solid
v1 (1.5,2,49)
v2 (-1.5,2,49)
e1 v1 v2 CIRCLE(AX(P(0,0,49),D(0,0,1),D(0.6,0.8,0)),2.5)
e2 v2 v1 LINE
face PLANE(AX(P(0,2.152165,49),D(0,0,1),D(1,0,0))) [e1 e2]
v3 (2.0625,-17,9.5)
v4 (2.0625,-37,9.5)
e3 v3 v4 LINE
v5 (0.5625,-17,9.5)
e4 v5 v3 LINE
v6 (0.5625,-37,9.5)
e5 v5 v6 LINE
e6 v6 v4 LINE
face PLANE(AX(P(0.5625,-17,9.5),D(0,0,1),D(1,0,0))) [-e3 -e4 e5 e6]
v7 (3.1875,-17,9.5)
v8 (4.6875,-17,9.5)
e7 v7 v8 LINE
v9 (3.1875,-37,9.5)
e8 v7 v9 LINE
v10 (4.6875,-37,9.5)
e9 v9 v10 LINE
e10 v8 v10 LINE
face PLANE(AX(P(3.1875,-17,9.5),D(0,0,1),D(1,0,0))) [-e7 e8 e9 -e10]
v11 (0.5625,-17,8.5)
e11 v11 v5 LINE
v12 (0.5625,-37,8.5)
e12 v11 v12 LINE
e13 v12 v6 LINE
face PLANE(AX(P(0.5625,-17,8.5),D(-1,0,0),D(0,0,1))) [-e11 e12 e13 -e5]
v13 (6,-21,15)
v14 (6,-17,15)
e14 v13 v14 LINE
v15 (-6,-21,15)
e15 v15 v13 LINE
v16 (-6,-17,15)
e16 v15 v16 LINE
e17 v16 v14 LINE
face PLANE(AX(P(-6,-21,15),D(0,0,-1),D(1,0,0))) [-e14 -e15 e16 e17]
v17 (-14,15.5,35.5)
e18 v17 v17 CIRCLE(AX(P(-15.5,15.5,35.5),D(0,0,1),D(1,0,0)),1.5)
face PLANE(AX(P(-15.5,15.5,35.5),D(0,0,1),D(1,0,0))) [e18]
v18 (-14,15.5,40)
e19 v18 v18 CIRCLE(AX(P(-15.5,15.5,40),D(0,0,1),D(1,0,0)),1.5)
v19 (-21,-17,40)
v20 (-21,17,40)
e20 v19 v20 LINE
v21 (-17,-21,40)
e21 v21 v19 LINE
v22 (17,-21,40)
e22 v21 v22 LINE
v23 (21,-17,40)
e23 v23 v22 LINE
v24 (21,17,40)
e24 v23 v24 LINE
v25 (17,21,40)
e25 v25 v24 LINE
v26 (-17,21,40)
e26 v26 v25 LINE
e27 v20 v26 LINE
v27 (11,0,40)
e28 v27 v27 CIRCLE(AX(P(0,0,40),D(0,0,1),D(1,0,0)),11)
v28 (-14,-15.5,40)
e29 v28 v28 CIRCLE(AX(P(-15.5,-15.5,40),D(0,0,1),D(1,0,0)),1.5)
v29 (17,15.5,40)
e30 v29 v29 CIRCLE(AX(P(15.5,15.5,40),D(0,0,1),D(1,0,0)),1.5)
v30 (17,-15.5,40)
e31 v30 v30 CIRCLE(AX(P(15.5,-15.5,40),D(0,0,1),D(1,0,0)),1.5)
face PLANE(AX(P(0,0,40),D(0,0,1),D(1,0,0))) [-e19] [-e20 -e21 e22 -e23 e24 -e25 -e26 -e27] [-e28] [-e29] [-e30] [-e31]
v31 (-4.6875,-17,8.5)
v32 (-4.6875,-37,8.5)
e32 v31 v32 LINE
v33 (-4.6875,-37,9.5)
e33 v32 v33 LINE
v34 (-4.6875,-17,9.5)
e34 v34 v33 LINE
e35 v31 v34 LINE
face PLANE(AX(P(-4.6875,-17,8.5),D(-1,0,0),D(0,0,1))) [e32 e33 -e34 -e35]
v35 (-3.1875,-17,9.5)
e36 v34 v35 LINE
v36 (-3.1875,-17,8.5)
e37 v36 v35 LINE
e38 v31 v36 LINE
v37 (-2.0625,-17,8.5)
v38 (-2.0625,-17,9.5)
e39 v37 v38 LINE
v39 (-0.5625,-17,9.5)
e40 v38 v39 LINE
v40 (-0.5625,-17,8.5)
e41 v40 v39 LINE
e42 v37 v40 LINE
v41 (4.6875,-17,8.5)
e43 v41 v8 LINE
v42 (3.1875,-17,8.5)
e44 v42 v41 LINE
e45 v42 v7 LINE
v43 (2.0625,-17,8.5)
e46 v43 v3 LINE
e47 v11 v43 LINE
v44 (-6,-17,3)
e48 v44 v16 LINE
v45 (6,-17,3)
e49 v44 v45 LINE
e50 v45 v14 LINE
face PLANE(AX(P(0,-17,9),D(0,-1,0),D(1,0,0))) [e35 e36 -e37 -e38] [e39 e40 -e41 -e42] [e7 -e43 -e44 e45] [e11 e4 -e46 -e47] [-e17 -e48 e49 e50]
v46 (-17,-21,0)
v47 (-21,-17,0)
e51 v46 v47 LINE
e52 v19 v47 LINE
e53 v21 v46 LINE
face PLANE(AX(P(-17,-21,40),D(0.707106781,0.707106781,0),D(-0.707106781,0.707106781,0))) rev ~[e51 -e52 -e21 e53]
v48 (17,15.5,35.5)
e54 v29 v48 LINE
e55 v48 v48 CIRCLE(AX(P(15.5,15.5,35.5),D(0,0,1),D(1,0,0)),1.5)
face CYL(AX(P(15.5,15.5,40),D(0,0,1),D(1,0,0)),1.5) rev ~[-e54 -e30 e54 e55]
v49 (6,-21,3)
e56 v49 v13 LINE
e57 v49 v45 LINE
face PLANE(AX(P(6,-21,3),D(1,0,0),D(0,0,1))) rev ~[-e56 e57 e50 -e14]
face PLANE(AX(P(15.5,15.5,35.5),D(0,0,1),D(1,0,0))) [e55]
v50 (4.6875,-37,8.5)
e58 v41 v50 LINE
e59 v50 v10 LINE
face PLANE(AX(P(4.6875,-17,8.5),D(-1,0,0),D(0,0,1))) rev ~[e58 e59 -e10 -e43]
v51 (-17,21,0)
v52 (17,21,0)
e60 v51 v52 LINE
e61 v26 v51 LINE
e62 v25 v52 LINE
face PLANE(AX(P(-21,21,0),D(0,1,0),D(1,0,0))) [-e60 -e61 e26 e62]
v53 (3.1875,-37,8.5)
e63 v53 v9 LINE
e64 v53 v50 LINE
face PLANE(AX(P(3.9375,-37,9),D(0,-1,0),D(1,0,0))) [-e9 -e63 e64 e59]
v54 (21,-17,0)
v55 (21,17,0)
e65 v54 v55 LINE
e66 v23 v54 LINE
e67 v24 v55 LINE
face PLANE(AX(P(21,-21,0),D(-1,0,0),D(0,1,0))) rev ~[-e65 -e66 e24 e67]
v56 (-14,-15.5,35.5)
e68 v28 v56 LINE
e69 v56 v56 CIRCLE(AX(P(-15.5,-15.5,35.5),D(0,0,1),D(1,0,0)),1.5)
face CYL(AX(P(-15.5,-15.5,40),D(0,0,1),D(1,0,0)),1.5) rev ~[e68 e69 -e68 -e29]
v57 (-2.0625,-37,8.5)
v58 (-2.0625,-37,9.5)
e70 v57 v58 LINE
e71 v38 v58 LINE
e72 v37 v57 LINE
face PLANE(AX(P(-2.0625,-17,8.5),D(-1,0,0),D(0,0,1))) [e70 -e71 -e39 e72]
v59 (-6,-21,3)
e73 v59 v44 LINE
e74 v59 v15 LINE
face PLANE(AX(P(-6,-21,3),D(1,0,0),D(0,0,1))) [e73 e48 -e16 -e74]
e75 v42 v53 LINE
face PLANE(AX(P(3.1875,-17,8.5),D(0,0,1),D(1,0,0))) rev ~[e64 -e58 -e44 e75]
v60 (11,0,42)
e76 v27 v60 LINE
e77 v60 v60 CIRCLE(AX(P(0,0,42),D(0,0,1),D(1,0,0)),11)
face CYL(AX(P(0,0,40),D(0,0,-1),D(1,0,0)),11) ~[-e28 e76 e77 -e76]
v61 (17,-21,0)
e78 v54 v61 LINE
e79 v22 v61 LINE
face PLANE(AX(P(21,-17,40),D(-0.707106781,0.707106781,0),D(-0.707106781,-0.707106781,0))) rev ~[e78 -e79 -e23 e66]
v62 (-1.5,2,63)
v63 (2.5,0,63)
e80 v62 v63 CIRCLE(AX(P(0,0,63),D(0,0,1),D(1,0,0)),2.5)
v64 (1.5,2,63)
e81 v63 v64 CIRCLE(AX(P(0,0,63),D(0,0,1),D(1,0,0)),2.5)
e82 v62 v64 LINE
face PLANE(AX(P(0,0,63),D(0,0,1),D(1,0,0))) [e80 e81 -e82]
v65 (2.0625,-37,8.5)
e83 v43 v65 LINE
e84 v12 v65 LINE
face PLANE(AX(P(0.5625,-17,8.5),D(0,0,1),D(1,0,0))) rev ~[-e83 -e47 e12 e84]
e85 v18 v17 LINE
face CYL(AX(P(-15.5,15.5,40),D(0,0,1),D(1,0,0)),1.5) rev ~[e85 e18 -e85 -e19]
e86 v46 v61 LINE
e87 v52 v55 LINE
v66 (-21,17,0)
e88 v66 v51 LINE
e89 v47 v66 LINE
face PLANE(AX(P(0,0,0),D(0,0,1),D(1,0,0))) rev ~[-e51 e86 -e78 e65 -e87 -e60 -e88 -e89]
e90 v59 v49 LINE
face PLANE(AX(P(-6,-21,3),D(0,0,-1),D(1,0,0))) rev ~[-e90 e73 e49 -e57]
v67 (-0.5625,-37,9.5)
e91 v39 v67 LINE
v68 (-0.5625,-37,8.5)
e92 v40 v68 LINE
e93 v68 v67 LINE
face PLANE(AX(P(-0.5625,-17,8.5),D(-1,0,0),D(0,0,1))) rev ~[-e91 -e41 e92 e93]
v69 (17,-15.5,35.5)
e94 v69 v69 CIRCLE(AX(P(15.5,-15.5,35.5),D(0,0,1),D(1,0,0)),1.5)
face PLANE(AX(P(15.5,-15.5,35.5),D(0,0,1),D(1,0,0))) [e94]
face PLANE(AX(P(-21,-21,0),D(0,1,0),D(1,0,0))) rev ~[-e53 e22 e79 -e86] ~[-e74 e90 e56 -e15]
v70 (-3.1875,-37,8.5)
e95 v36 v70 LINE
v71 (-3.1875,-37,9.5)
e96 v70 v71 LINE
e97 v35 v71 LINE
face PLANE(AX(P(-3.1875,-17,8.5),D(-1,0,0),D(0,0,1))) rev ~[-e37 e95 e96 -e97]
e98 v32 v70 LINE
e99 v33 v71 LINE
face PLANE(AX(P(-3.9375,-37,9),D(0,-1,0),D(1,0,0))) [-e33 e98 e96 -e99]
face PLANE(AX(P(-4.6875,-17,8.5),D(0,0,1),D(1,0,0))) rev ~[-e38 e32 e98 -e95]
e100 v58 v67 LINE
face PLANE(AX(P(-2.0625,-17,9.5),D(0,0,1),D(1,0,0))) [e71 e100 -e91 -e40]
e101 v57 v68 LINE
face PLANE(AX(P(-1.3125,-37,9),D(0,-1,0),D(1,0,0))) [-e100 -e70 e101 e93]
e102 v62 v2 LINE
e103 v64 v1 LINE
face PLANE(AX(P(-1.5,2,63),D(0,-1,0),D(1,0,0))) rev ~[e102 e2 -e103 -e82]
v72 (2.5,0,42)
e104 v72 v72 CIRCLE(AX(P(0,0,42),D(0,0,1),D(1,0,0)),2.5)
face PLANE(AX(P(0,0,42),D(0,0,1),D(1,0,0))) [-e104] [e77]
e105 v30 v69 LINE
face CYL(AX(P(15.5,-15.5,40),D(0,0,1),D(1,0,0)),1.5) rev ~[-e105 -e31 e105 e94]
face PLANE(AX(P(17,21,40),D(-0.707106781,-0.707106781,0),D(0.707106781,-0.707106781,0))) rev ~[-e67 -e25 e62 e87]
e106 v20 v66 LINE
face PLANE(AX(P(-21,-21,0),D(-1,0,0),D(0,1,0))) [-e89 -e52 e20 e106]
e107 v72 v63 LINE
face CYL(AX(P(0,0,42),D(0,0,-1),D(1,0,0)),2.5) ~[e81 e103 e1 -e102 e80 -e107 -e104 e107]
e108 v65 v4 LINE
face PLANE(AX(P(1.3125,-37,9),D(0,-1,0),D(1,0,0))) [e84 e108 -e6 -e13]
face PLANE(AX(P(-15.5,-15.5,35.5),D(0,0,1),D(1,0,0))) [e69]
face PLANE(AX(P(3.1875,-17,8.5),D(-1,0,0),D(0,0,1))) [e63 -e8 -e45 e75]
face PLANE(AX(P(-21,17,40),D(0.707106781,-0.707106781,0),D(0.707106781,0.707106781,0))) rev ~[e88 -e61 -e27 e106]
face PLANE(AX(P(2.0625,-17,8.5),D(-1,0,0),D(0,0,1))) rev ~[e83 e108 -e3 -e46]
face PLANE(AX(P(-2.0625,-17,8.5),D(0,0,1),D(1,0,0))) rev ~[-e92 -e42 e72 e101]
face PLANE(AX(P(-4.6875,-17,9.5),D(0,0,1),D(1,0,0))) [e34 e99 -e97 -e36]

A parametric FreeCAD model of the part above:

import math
import FreeCAD as App
import Part
import Sketcher

V = App.Vector
Q = App.Units.Quantity


def add_polygon(sketch, points):
    """Adds a closed chain of lines whose ends are joined by coincident constraints."""
    first, n = sketch.GeometryCount, len(points)
    for a, b in zip(points, points[1:] + points[:1]):
        sketch.addGeometry(Part.LineSegment(App.Vector(*a, 0), App.Vector(*b, 0)), False)
    for i in range(n):
        sketch.addConstraint(Sketcher.Constraint("Coincident", first + i, 2, first + (i + 1) % n, 1))

doc = App.newDocument("Part")
body = doc.addObject("PartDesign::Body", "Body")

sketch1 = doc.addObject("Sketcher::SketchObject", "Sketch")
body.addObject(sketch1)
sketch1.AttachmentSupport = (doc.XY_Plane, [""])
sketch1.MapMode = "FlatFace"
add_polygon(sketch1, [(-21, 21), (-21, -21), (21, -21), (21, 21)])
sketch1.addConstraint([
    Sketcher.Constraint("Vertical", 0),
    Sketcher.Constraint("Horizontal", 1),
    Sketcher.Constraint("Vertical", 2),
    Sketcher.Constraint("Horizontal", 3),
    Sketcher.Constraint("Symmetric", 0, 2, 2, 2, -1, 1),
    Sketcher.Constraint("Equal", 3, 0),
    Sketcher.Constraint("DistanceX", 1, 1, 1, 2, Q("42 mm")),
])
pad1 = doc.addObject("PartDesign::Pad", "Pad")
body.addObject(pad1)
pad1.Profile = sketch1
pad1.Length = 40

sketch2 = doc.addObject("Sketcher::SketchObject", "Sketch001")
body.addObject(sketch2)
sketch2.AttachmentSupport = (doc.XY_Plane, [""])
sketch2.MapMode = "FlatFace"
sketch2.AttachmentOffset = App.Placement(V(0, 0, 40), App.Rotation())
sketch2.addGeometry([
    Part.Circle(V(15.5, 15.5, 0), V(0, 0, 1), 1.5),
    Part.Circle(V(15.5, -15.5, 0), V(0, 0, 1), 1.5),
    Part.Circle(V(-15.5, -15.5, 0), V(0, 0, 1), 1.5),
    Part.Circle(V(-15.5, 15.5, 0), V(0, 0, 1), 1.5),
], False)
sketch2.addConstraint([
    Sketcher.Constraint("Equal", 0, 1),
    Sketcher.Constraint("Equal", 1, 2),
    Sketcher.Constraint("Equal", 2, 3),
    Sketcher.Constraint("Symmetric", 0, 3, 2, 3, -1, 1),
    Sketcher.Constraint("Symmetric", 1, 3, 3, 3, -1, 1),
    Sketcher.Constraint("Symmetric", 1, 3, 2, 3, -2),
    Sketcher.Constraint("Diameter", 0, Q("3 mm")),
    Sketcher.Constraint("DistanceY", 1, 3, 0, 3, Q("31 mm")),
    Sketcher.Constraint("DistanceX", 2, 3, 1, 3, Q("31 mm")),
])
pocket1 = doc.addObject("PartDesign::Pocket", "Pocket")
body.addObject(pocket1)
pocket1.Profile = sketch2
pocket1.Length = 4.5

sketch3 = doc.addObject("Sketcher::SketchObject", "Sketch002")
body.addObject(sketch3)
sketch3.AttachmentSupport = (doc.XY_Plane, [""])
sketch3.MapMode = "FlatFace"
sketch3.AttachmentOffset = App.Placement(V(0, 0, 40), App.Rotation())
add_polygon(sketch3, [(17, 21), (21, 17), (21, 21)])
add_polygon(sketch3, [(17, -21), (21, -21), (21, -17)])
add_polygon(sketch3, [(-17, -21), (-21, -17), (-21, -21)])
add_polygon(sketch3, [(-17, 21), (-21, 21), (-21, 17)])
sketch3.addConstraint([
    Sketcher.Constraint("Vertical", 1),
    Sketcher.Constraint("Horizontal", 2),
    Sketcher.Constraint("Horizontal", 3),
    Sketcher.Constraint("Vertical", 4),
    Sketcher.Constraint("Vertical", 7),
    Sketcher.Constraint("Horizontal", 8),
    Sketcher.Constraint("Horizontal", 9),
    Sketcher.Constraint("Vertical", 10),
    Sketcher.Constraint("Symmetric", 0, 2, 6, 2, -1, 1),
    Sketcher.Constraint("Symmetric", 2, 2, 8, 2, -1, 1),
    Sketcher.Constraint("Symmetric", 3, 2, 9, 2, -1, 1),
    Sketcher.Constraint("Symmetric", 4, 2, 6, 2, -2),
    Sketcher.Constraint("Symmetric", 5, 2, 8, 2, -2),
    Sketcher.Constraint("Perpendicular", 0, 5),
    Sketcher.Constraint("Perpendicular", 6, 11),
    Sketcher.Constraint("Horizontal", 0, 2, 10, 2),
    Sketcher.Constraint("DistanceX", 2, 2, 2, 1, Q("4 mm")),
    Sketcher.Constraint("DistanceX", -1, 1, 0, 2, Q("21 mm")),
    Sketcher.Constraint("DistanceY", -1, 1, 0, 2, Q("17 mm")),
])
pocket2 = doc.addObject("PartDesign::Pocket", "Pocket001")
body.addObject(pocket2)
pocket2.Profile = sketch3
pocket2.Type = "ThroughAll"

sketch4 = doc.addObject("Sketcher::SketchObject", "Sketch003")
body.addObject(sketch4)
sketch4.AttachmentSupport = (doc.XY_Plane, [""])
sketch4.MapMode = "FlatFace"
sketch4.AttachmentOffset = App.Placement(V(0, 0, 40), App.Rotation())
sketch4.addGeometry(Part.Circle(V(0, 0, 0), V(0, 0, 1), 11), False)
sketch4.addConstraint([
    Sketcher.Constraint("Coincident", 0, 3, -1, 1),
    Sketcher.Constraint("Diameter", 0, Q("22 mm")),
])
pad2 = doc.addObject("PartDesign::Pad", "Pad001")
body.addObject(pad2)
pad2.Profile = sketch4
pad2.Length = 2

sketch5 = doc.addObject("Sketcher::SketchObject", "Sketch004")
body.addObject(sketch5)
sketch5.AttachmentSupport = (doc.XY_Plane, [""])
sketch5.MapMode = "FlatFace"
sketch5.AttachmentOffset = App.Placement(V(0, 0, 42), App.Rotation())
sketch5.addGeometry(Part.Circle(V(0, 0, 0), V(0, 0, 1), 2.5), False)
sketch5.addConstraint([
    Sketcher.Constraint("Coincident", 0, 3, -1, 1),
    Sketcher.Constraint("Diameter", 0, Q("5 mm")),
])
pad3 = doc.addObject("PartDesign::Pad", "Pad002")
body.addObject(pad3)
pad3.Profile = sketch5
pad3.Length = 21

sketch6 = doc.addObject("Sketcher::SketchObject", "Sketch005")
body.addObject(sketch6)
sketch6.AttachmentSupport = (doc.XY_Plane, [""])
sketch6.MapMode = "FlatFace"
sketch6.AttachmentOffset = App.Placement(V(0, 0, 63), App.Rotation())
sketch6.addGeometry([
    Part.LineSegment(V(-1.5, 2, 0), V(1.5, 2, 0)),
    Part.ArcOfCircle(Part.Circle(V(0, 0, 0), V(0, 0, 1), 2.5), math.radians(53), math.radians(127)),
], False)
sketch6.addConstraint([
    Sketcher.Constraint("Coincident", 0, 1, 1, 2),
    Sketcher.Constraint("Coincident", 1, 1, 0, 2),
    Sketcher.Constraint("Horizontal", 0),
    Sketcher.Constraint("Coincident", 1, 3, -1, 1),
    Sketcher.Constraint("Radius", 1, Q("2.5 mm")),
    Sketcher.Constraint("DistanceX", 0, 1, 0, 2, Q("3 mm")),
])
pocket3 = doc.addObject("PartDesign::Pocket", "Pocket002")
body.addObject(pocket3)
pocket3.Profile = sketch6
pocket3.Length = 14

sketch7 = doc.addObject("Sketcher::SketchObject", "Sketch006")
body.addObject(sketch7)
sketch7.AttachmentSupport = (doc.XZ_Plane, [""])
sketch7.MapMode = "FlatFace"
sketch7.AttachmentOffset = App.Placement(V(0, 0, 21), App.Rotation())
add_polygon(sketch7, [(-6, 15), (-6, 3), (6, 3), (6, 15)])
sketch7.addConstraint([
    Sketcher.Constraint("Vertical", 0),
    Sketcher.Constraint("Horizontal", 1),
    Sketcher.Constraint("Vertical", 2),
    Sketcher.Constraint("Horizontal", 3),
    Sketcher.Constraint("Equal", 3, 0),
    Sketcher.Constraint("DistanceX", 1, 1, 1, 2, Q("12 mm")),
    Sketcher.Constraint("DistanceX", 0, 2, -1, 1, Q("6 mm")),
    Sketcher.Constraint("DistanceY", -1, 1, 0, 2, Q("3 mm")),
])
pocket4 = doc.addObject("PartDesign::Pocket", "Pocket003")
body.addObject(pocket4)
pocket4.Profile = sketch7
pocket4.Length = 4

sketch8 = doc.addObject("Sketcher::SketchObject", "Sketch007")
body.addObject(sketch8)
sketch8.AttachmentSupport = (doc.XZ_Plane, [""])
sketch8.MapMode = "FlatFace"
sketch8.AttachmentOffset = App.Placement(V(0, 0, 17), App.Rotation())
add_polygon(sketch8, [(-4.7, 9.5), (-4.7, 8.5), (-3.2, 8.5), (-3.2, 9.5)])
add_polygon(sketch8, [(-2.1, 9.5), (-2.1, 8.5), (-0.6, 8.5), (-0.6, 9.5)])
add_polygon(sketch8, [(0.6, 9.5), (0.6, 8.5), (2.1, 8.5), (2.1, 9.5)])
add_polygon(sketch8, [(3.2, 9.5), (3.2, 8.5), (4.7, 8.5), (4.7, 9.5)])
sketch8.addConstraint([
    Sketcher.Constraint("Vertical", 0),
    Sketcher.Constraint("Horizontal", 1),
    Sketcher.Constraint("Vertical", 2),
    Sketcher.Constraint("Horizontal", 3),
    Sketcher.Constraint("Vertical", 4),
    Sketcher.Constraint("Horizontal", 5),
    Sketcher.Constraint("Vertical", 6),
    Sketcher.Constraint("Horizontal", 7),
    Sketcher.Constraint("Vertical", 8),
    Sketcher.Constraint("Horizontal", 9),
    Sketcher.Constraint("Vertical", 10),
    Sketcher.Constraint("Horizontal", 11),
    Sketcher.Constraint("Vertical", 12),
    Sketcher.Constraint("Horizontal", 13),
    Sketcher.Constraint("Vertical", 14),
    Sketcher.Constraint("Horizontal", 15),
    Sketcher.Constraint("Symmetric", 5, 2, 8, 2, -2),
    Sketcher.Constraint("Symmetric", 7, 2, 10, 2, -2),
    Sketcher.Constraint("Symmetric", 1, 2, 12, 2, -2),
    Sketcher.Constraint("Symmetric", 3, 2, 14, 2, -2),
    Sketcher.Constraint("Horizontal", 1, 2, 4, 2),
    Sketcher.Constraint("Horizontal", 3, 2, 6, 2),
    Sketcher.Constraint("Equal", 3, 5),
    Sketcher.Constraint("DistanceY", 0, 2, 0, 1, Q("1 mm")),
    Sketcher.Constraint("DistanceX", 1, 1, 1, 2, Q("1.5 mm")),
    Sketcher.Constraint("DistanceY", -1, 1, 0, 2, Q("8.5 mm")),
    Sketcher.Constraint("DistanceX", 1, 2, 8, 2, Q("3.75 mm")),
    Sketcher.Constraint("DistanceX", 1, 2, 4, 2, Q("1.125 mm")),
])
pad4 = doc.addObject("PartDesign::Pad", "Pad003")
body.addObject(pad4)
pad4.Profile = sketch8
pad4.Length = 20

doc.recompute()
